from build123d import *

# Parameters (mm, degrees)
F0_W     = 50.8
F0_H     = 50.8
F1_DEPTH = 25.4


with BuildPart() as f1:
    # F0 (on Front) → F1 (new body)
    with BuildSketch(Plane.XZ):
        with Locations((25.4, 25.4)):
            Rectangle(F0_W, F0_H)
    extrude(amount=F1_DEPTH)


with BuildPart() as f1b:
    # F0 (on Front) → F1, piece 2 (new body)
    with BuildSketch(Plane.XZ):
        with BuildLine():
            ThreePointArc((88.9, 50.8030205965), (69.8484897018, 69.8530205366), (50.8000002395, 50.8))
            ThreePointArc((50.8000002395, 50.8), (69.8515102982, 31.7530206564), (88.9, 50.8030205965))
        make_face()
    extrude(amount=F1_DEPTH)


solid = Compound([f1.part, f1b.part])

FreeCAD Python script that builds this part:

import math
import FreeCAD as App
import Part
import Sketcher
Q = App.Units.Quantity


def add_polygon(sketch, points):
    """Adds a closed chain of lines whose ends are joined by coincident constraints."""
    first, n = sketch.GeometryCount, len(points)
    for a, b in zip(points, points[1:] + points[:1]):
        sketch.addGeometry(Part.LineSegment(App.Vector(*a, 0), App.Vector(*b, 0)), False)
    for i in range(n):
        sketch.addConstraint(Sketcher.Constraint("Coincident", first + i, 2, first + (i + 1) % n, 1))

doc = App.newDocument("Part")
body = doc.addObject("PartDesign::Body", "Body")

# Sketch on XZ plane
sketch1 = doc.addObject("Sketcher::SketchObject", "Sketch")
body.addObject(sketch1)
sketch1.AttachmentSupport = (doc.XZ_Plane, [""])
sketch1.MapMode = "FlatFace"
add_polygon(sketch1, [(0, 51), (0, 0), (51, 0), (51, 51)])  # lines 0-3
sketch1.addConstraint([
    Sketcher.Constraint("Vertical", 0),
    Sketcher.Constraint("Horizontal", 1),
    Sketcher.Constraint("Vertical", 2),
    Sketcher.Constraint("Horizontal", 3),
    Sketcher.Constraint("Coincident", 0, 2, -1, 1),
    Sketcher.Constraint("Equal", 3, 0),
    Sketcher.Constraint("DistanceX", 1, 1, 1, 2, Q("2 in")),
])
pad1 = doc.addObject("PartDesign::Pad", "Pad")
body.addObject(pad1)
pad1.Profile = sketch1
pad1.Length = Q("1 in")
body2 = doc.addObject("PartDesign::Body", "Body001")

# Sketch on XZ plane
sketch2 = doc.addObject("Sketcher::SketchObject", "Sketch001")
body2.addObject(sketch2)
sketch2.AttachmentSupport = (doc.getObject("XZ_Plane001"), [""])
sketch2.MapMode = "FlatFace"
sketch2.addGeometry([
    Part.ArcOfCircle(Part.Circle(App.Vector(70, 51, 0), App.Vector(0, 0, 1), 19), math.radians(0), math.radians(180)),
    Part.ArcOfCircle(Part.Circle(App.Vector(70, 51, 0), App.Vector(0, 0, 1), 19), math.radians(-180), math.radians(0)),
], False)
sketch2.addConstraint([
    Sketcher.Constraint("Tangent", 0, 1, 1, 2),
    Sketcher.Constraint("Coincident", 1, 1, 0, 2),
    Sketcher.Constraint("Horizontal", 1, 3, 0, 1),
    Sketcher.Constraint("Radius", 0, Q("0.75 in")),
    Sketcher.Constraint("DistanceX", -1, 1, 1, 1, Q("2 in")),
    Sketcher.Constraint("DistanceY", -1, 1, 1, 1, Q("2 in")),
    Sketcher.Constraint("DistanceY", -1, 1, 0, 3, Q("50.803021 mm")),
])
pad2 = doc.addObject("PartDesign::Pad", "Pad001")
body2.addObject(pad2)
pad2.Profile = sketch2
pad2.Length = Q("1 in")

doc.recompute()
